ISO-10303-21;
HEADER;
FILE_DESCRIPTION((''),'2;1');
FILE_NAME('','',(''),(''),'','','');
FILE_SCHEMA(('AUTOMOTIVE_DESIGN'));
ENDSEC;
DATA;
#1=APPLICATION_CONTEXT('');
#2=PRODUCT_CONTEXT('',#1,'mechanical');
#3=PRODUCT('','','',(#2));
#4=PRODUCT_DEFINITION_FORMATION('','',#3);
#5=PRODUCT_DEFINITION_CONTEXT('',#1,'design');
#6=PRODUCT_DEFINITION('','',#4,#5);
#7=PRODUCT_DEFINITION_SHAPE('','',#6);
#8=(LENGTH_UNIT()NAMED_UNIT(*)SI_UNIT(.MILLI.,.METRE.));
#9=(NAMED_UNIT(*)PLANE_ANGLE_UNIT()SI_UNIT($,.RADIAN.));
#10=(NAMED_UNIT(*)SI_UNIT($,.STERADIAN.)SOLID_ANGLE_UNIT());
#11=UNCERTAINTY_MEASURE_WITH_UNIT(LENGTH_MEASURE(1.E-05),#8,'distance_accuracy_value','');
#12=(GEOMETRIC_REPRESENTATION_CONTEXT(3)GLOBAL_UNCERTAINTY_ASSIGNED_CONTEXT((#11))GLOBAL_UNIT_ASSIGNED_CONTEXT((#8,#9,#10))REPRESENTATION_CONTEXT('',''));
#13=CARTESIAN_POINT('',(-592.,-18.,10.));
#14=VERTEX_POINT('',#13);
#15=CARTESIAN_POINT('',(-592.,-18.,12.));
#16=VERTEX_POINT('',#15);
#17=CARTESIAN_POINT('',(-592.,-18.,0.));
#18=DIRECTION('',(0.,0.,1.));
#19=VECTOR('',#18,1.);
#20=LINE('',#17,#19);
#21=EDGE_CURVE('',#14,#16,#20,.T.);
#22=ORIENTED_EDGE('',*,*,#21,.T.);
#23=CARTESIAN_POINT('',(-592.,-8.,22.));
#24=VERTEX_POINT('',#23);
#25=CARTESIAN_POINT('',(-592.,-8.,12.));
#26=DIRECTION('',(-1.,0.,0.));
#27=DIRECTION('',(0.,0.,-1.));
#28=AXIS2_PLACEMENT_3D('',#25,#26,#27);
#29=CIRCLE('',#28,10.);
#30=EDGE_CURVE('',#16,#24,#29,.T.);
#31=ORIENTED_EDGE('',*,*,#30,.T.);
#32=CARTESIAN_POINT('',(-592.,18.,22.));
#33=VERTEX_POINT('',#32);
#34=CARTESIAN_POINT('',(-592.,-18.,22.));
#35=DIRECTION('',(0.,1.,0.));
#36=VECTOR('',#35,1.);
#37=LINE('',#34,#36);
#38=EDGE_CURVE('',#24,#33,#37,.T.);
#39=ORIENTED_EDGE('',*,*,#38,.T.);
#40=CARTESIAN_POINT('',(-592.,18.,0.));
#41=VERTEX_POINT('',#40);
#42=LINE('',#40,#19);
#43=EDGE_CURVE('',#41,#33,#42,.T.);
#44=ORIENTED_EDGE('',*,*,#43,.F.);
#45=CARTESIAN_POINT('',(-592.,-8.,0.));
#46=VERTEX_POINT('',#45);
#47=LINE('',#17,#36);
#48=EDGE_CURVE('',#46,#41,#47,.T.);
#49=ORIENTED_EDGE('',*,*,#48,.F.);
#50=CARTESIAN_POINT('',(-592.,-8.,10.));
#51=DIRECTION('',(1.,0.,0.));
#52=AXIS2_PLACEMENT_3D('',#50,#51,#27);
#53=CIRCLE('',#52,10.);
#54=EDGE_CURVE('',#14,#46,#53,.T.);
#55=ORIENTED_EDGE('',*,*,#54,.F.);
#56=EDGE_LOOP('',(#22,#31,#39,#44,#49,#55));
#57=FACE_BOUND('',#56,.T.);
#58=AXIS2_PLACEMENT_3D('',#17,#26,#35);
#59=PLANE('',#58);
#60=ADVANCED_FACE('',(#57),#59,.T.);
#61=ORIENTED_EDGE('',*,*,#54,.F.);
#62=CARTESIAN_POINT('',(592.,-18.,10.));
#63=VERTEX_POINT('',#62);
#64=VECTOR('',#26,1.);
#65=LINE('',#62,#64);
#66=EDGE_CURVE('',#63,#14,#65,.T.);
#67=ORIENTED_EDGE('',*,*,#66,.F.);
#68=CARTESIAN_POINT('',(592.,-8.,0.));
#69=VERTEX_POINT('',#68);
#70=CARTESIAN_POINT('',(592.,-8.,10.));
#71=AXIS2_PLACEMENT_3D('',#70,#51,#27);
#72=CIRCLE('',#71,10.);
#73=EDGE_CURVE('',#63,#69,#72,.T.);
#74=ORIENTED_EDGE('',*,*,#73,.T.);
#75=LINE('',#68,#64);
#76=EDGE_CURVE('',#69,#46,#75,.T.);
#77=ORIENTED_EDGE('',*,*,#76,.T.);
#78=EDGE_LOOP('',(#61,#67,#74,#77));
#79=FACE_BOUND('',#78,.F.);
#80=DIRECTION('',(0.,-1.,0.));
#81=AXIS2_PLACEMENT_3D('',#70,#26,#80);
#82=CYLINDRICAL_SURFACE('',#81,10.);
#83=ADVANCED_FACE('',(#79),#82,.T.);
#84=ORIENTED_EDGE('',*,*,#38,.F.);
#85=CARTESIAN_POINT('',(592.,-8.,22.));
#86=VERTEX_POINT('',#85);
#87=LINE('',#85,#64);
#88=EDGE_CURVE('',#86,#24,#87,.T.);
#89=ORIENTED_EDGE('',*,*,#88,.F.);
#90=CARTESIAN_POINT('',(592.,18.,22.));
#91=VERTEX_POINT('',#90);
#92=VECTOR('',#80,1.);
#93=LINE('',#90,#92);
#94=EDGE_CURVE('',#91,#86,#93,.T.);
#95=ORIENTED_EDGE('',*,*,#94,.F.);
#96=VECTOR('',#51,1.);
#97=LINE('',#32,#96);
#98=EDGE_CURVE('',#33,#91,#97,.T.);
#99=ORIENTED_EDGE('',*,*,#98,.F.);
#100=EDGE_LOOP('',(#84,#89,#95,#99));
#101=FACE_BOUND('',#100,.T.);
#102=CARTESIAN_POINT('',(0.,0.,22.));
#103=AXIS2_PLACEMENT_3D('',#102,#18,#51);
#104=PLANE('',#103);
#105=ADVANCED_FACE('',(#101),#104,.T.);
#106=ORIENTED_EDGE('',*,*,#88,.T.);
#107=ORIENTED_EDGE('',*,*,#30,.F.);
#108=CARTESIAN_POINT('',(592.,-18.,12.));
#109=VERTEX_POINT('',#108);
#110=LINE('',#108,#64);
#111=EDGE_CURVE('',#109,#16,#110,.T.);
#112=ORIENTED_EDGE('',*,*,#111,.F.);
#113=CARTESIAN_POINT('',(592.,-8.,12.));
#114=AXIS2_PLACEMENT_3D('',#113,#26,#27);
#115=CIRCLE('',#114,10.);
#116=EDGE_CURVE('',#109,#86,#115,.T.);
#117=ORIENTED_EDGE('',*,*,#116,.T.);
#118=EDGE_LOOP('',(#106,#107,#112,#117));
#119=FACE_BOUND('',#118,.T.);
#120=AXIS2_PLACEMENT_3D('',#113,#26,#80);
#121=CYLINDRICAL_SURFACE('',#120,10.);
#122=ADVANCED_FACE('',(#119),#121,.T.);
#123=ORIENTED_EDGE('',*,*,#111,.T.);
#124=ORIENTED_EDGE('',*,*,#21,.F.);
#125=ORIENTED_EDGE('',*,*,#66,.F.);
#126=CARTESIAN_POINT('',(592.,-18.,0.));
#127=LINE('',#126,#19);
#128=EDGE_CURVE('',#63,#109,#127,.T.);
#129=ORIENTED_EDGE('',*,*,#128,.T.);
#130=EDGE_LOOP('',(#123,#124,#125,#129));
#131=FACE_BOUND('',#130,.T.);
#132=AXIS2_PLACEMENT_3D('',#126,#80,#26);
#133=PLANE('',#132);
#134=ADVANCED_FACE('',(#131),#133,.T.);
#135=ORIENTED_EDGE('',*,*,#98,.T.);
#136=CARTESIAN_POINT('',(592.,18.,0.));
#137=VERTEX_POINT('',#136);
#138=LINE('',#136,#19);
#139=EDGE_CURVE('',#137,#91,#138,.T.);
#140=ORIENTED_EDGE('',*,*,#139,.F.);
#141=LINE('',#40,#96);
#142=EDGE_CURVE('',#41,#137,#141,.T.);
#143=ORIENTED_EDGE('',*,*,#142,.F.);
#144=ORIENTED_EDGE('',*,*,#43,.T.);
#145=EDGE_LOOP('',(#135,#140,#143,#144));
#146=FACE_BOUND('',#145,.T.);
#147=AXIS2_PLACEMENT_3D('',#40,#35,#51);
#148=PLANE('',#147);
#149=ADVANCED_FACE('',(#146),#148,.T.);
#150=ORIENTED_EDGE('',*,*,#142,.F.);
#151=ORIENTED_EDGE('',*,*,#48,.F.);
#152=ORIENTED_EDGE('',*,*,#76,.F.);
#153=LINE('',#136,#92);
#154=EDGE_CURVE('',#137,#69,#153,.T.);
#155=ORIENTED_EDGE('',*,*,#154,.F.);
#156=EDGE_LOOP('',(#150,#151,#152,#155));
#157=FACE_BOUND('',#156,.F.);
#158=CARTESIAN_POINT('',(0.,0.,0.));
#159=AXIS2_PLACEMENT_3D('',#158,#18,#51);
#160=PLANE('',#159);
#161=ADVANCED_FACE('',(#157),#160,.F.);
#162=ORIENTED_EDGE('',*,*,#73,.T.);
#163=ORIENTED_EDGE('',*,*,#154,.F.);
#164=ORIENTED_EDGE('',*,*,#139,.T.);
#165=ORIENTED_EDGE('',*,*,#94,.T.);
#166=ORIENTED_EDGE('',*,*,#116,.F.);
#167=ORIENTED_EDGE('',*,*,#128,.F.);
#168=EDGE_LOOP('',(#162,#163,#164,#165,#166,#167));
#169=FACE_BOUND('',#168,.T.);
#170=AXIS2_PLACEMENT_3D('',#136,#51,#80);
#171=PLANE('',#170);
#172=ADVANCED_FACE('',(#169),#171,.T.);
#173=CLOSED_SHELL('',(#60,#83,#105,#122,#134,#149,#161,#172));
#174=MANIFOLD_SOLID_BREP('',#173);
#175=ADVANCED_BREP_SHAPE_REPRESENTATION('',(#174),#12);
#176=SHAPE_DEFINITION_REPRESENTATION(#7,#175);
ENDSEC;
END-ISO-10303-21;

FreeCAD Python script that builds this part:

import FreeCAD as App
import Part
import Sketcher
from FreeCAD import Vector
Q = App.Units.Quantity


def edges_at(feature, points):
    """Names of the edges that pass closest to the given points."""
    edges = feature.Shape.Edges
    near = lambda p: min(range(len(edges)), key=lambda i: edges[i].distToShape(Part.Vertex(*p))[0])
    return sorted({f"Edge{near(p) + 1}" for p in points})


def add_polygon(sketch, points):
    """Adds a closed chain of lines whose ends are joined by coincident constraints."""
    first, n = sketch.GeometryCount, len(points)
    for a, b in zip(points, points[1:] + points[:1]):
        sketch.addGeometry(Part.LineSegment(App.Vector(*a, 0), App.Vector(*b, 0)), False)
    for i in range(n):
        sketch.addConstraint(Sketcher.Constraint("Coincident", first + i, 2, first + (i + 1) % n, 1))

doc = App.newDocument("Part")
body = doc.addObject("PartDesign::Body", "Body")

sketch1 = doc.addObject("Sketcher::SketchObject", "Sketch")
body.addObject(sketch1)
sketch1.AttachmentSupport = (doc.XY_Plane, [""])
sketch1.MapMode = "FlatFace"
add_polygon(sketch1, [(592, 18), (-592, 18), (-592, -18), (592, -18)])
sketch1.addConstraint([
    Sketcher.Constraint("Horizontal", 0),
    Sketcher.Constraint("Vertical", 1),
    Sketcher.Constraint("Horizontal", 2),
    Sketcher.Constraint("Vertical", 3),
    Sketcher.Constraint("Symmetric", 0, 2, 2, 2, -1, 1),
    Sketcher.Constraint("DistanceX", 0, 2, 0, 1, Q("1184 mm")),
    Sketcher.Constraint("DistanceY", 1, 2, 1, 1, Q("36 mm")),
])
pad1 = doc.addObject("PartDesign::Pad", "Pad")
body.addObject(pad1)
pad1.Profile = sketch1
pad1.Length = 22
doc.recompute()

fillet = doc.addObject("PartDesign::Fillet", "Fillet")
body.addObject(fillet)
fillet.Base = (pad1, edges_at(pad1, [(0, -18, 22)]))
fillet.Radius = 10
doc.recompute()

fillet2 = doc.addObject("PartDesign::Fillet", "Fillet001")
body.addObject(fillet2)
fillet2.Base = (fillet, edges_at(fillet, [(0, -18, 0)]))
fillet2.Radius = 10

doc.recompute()
